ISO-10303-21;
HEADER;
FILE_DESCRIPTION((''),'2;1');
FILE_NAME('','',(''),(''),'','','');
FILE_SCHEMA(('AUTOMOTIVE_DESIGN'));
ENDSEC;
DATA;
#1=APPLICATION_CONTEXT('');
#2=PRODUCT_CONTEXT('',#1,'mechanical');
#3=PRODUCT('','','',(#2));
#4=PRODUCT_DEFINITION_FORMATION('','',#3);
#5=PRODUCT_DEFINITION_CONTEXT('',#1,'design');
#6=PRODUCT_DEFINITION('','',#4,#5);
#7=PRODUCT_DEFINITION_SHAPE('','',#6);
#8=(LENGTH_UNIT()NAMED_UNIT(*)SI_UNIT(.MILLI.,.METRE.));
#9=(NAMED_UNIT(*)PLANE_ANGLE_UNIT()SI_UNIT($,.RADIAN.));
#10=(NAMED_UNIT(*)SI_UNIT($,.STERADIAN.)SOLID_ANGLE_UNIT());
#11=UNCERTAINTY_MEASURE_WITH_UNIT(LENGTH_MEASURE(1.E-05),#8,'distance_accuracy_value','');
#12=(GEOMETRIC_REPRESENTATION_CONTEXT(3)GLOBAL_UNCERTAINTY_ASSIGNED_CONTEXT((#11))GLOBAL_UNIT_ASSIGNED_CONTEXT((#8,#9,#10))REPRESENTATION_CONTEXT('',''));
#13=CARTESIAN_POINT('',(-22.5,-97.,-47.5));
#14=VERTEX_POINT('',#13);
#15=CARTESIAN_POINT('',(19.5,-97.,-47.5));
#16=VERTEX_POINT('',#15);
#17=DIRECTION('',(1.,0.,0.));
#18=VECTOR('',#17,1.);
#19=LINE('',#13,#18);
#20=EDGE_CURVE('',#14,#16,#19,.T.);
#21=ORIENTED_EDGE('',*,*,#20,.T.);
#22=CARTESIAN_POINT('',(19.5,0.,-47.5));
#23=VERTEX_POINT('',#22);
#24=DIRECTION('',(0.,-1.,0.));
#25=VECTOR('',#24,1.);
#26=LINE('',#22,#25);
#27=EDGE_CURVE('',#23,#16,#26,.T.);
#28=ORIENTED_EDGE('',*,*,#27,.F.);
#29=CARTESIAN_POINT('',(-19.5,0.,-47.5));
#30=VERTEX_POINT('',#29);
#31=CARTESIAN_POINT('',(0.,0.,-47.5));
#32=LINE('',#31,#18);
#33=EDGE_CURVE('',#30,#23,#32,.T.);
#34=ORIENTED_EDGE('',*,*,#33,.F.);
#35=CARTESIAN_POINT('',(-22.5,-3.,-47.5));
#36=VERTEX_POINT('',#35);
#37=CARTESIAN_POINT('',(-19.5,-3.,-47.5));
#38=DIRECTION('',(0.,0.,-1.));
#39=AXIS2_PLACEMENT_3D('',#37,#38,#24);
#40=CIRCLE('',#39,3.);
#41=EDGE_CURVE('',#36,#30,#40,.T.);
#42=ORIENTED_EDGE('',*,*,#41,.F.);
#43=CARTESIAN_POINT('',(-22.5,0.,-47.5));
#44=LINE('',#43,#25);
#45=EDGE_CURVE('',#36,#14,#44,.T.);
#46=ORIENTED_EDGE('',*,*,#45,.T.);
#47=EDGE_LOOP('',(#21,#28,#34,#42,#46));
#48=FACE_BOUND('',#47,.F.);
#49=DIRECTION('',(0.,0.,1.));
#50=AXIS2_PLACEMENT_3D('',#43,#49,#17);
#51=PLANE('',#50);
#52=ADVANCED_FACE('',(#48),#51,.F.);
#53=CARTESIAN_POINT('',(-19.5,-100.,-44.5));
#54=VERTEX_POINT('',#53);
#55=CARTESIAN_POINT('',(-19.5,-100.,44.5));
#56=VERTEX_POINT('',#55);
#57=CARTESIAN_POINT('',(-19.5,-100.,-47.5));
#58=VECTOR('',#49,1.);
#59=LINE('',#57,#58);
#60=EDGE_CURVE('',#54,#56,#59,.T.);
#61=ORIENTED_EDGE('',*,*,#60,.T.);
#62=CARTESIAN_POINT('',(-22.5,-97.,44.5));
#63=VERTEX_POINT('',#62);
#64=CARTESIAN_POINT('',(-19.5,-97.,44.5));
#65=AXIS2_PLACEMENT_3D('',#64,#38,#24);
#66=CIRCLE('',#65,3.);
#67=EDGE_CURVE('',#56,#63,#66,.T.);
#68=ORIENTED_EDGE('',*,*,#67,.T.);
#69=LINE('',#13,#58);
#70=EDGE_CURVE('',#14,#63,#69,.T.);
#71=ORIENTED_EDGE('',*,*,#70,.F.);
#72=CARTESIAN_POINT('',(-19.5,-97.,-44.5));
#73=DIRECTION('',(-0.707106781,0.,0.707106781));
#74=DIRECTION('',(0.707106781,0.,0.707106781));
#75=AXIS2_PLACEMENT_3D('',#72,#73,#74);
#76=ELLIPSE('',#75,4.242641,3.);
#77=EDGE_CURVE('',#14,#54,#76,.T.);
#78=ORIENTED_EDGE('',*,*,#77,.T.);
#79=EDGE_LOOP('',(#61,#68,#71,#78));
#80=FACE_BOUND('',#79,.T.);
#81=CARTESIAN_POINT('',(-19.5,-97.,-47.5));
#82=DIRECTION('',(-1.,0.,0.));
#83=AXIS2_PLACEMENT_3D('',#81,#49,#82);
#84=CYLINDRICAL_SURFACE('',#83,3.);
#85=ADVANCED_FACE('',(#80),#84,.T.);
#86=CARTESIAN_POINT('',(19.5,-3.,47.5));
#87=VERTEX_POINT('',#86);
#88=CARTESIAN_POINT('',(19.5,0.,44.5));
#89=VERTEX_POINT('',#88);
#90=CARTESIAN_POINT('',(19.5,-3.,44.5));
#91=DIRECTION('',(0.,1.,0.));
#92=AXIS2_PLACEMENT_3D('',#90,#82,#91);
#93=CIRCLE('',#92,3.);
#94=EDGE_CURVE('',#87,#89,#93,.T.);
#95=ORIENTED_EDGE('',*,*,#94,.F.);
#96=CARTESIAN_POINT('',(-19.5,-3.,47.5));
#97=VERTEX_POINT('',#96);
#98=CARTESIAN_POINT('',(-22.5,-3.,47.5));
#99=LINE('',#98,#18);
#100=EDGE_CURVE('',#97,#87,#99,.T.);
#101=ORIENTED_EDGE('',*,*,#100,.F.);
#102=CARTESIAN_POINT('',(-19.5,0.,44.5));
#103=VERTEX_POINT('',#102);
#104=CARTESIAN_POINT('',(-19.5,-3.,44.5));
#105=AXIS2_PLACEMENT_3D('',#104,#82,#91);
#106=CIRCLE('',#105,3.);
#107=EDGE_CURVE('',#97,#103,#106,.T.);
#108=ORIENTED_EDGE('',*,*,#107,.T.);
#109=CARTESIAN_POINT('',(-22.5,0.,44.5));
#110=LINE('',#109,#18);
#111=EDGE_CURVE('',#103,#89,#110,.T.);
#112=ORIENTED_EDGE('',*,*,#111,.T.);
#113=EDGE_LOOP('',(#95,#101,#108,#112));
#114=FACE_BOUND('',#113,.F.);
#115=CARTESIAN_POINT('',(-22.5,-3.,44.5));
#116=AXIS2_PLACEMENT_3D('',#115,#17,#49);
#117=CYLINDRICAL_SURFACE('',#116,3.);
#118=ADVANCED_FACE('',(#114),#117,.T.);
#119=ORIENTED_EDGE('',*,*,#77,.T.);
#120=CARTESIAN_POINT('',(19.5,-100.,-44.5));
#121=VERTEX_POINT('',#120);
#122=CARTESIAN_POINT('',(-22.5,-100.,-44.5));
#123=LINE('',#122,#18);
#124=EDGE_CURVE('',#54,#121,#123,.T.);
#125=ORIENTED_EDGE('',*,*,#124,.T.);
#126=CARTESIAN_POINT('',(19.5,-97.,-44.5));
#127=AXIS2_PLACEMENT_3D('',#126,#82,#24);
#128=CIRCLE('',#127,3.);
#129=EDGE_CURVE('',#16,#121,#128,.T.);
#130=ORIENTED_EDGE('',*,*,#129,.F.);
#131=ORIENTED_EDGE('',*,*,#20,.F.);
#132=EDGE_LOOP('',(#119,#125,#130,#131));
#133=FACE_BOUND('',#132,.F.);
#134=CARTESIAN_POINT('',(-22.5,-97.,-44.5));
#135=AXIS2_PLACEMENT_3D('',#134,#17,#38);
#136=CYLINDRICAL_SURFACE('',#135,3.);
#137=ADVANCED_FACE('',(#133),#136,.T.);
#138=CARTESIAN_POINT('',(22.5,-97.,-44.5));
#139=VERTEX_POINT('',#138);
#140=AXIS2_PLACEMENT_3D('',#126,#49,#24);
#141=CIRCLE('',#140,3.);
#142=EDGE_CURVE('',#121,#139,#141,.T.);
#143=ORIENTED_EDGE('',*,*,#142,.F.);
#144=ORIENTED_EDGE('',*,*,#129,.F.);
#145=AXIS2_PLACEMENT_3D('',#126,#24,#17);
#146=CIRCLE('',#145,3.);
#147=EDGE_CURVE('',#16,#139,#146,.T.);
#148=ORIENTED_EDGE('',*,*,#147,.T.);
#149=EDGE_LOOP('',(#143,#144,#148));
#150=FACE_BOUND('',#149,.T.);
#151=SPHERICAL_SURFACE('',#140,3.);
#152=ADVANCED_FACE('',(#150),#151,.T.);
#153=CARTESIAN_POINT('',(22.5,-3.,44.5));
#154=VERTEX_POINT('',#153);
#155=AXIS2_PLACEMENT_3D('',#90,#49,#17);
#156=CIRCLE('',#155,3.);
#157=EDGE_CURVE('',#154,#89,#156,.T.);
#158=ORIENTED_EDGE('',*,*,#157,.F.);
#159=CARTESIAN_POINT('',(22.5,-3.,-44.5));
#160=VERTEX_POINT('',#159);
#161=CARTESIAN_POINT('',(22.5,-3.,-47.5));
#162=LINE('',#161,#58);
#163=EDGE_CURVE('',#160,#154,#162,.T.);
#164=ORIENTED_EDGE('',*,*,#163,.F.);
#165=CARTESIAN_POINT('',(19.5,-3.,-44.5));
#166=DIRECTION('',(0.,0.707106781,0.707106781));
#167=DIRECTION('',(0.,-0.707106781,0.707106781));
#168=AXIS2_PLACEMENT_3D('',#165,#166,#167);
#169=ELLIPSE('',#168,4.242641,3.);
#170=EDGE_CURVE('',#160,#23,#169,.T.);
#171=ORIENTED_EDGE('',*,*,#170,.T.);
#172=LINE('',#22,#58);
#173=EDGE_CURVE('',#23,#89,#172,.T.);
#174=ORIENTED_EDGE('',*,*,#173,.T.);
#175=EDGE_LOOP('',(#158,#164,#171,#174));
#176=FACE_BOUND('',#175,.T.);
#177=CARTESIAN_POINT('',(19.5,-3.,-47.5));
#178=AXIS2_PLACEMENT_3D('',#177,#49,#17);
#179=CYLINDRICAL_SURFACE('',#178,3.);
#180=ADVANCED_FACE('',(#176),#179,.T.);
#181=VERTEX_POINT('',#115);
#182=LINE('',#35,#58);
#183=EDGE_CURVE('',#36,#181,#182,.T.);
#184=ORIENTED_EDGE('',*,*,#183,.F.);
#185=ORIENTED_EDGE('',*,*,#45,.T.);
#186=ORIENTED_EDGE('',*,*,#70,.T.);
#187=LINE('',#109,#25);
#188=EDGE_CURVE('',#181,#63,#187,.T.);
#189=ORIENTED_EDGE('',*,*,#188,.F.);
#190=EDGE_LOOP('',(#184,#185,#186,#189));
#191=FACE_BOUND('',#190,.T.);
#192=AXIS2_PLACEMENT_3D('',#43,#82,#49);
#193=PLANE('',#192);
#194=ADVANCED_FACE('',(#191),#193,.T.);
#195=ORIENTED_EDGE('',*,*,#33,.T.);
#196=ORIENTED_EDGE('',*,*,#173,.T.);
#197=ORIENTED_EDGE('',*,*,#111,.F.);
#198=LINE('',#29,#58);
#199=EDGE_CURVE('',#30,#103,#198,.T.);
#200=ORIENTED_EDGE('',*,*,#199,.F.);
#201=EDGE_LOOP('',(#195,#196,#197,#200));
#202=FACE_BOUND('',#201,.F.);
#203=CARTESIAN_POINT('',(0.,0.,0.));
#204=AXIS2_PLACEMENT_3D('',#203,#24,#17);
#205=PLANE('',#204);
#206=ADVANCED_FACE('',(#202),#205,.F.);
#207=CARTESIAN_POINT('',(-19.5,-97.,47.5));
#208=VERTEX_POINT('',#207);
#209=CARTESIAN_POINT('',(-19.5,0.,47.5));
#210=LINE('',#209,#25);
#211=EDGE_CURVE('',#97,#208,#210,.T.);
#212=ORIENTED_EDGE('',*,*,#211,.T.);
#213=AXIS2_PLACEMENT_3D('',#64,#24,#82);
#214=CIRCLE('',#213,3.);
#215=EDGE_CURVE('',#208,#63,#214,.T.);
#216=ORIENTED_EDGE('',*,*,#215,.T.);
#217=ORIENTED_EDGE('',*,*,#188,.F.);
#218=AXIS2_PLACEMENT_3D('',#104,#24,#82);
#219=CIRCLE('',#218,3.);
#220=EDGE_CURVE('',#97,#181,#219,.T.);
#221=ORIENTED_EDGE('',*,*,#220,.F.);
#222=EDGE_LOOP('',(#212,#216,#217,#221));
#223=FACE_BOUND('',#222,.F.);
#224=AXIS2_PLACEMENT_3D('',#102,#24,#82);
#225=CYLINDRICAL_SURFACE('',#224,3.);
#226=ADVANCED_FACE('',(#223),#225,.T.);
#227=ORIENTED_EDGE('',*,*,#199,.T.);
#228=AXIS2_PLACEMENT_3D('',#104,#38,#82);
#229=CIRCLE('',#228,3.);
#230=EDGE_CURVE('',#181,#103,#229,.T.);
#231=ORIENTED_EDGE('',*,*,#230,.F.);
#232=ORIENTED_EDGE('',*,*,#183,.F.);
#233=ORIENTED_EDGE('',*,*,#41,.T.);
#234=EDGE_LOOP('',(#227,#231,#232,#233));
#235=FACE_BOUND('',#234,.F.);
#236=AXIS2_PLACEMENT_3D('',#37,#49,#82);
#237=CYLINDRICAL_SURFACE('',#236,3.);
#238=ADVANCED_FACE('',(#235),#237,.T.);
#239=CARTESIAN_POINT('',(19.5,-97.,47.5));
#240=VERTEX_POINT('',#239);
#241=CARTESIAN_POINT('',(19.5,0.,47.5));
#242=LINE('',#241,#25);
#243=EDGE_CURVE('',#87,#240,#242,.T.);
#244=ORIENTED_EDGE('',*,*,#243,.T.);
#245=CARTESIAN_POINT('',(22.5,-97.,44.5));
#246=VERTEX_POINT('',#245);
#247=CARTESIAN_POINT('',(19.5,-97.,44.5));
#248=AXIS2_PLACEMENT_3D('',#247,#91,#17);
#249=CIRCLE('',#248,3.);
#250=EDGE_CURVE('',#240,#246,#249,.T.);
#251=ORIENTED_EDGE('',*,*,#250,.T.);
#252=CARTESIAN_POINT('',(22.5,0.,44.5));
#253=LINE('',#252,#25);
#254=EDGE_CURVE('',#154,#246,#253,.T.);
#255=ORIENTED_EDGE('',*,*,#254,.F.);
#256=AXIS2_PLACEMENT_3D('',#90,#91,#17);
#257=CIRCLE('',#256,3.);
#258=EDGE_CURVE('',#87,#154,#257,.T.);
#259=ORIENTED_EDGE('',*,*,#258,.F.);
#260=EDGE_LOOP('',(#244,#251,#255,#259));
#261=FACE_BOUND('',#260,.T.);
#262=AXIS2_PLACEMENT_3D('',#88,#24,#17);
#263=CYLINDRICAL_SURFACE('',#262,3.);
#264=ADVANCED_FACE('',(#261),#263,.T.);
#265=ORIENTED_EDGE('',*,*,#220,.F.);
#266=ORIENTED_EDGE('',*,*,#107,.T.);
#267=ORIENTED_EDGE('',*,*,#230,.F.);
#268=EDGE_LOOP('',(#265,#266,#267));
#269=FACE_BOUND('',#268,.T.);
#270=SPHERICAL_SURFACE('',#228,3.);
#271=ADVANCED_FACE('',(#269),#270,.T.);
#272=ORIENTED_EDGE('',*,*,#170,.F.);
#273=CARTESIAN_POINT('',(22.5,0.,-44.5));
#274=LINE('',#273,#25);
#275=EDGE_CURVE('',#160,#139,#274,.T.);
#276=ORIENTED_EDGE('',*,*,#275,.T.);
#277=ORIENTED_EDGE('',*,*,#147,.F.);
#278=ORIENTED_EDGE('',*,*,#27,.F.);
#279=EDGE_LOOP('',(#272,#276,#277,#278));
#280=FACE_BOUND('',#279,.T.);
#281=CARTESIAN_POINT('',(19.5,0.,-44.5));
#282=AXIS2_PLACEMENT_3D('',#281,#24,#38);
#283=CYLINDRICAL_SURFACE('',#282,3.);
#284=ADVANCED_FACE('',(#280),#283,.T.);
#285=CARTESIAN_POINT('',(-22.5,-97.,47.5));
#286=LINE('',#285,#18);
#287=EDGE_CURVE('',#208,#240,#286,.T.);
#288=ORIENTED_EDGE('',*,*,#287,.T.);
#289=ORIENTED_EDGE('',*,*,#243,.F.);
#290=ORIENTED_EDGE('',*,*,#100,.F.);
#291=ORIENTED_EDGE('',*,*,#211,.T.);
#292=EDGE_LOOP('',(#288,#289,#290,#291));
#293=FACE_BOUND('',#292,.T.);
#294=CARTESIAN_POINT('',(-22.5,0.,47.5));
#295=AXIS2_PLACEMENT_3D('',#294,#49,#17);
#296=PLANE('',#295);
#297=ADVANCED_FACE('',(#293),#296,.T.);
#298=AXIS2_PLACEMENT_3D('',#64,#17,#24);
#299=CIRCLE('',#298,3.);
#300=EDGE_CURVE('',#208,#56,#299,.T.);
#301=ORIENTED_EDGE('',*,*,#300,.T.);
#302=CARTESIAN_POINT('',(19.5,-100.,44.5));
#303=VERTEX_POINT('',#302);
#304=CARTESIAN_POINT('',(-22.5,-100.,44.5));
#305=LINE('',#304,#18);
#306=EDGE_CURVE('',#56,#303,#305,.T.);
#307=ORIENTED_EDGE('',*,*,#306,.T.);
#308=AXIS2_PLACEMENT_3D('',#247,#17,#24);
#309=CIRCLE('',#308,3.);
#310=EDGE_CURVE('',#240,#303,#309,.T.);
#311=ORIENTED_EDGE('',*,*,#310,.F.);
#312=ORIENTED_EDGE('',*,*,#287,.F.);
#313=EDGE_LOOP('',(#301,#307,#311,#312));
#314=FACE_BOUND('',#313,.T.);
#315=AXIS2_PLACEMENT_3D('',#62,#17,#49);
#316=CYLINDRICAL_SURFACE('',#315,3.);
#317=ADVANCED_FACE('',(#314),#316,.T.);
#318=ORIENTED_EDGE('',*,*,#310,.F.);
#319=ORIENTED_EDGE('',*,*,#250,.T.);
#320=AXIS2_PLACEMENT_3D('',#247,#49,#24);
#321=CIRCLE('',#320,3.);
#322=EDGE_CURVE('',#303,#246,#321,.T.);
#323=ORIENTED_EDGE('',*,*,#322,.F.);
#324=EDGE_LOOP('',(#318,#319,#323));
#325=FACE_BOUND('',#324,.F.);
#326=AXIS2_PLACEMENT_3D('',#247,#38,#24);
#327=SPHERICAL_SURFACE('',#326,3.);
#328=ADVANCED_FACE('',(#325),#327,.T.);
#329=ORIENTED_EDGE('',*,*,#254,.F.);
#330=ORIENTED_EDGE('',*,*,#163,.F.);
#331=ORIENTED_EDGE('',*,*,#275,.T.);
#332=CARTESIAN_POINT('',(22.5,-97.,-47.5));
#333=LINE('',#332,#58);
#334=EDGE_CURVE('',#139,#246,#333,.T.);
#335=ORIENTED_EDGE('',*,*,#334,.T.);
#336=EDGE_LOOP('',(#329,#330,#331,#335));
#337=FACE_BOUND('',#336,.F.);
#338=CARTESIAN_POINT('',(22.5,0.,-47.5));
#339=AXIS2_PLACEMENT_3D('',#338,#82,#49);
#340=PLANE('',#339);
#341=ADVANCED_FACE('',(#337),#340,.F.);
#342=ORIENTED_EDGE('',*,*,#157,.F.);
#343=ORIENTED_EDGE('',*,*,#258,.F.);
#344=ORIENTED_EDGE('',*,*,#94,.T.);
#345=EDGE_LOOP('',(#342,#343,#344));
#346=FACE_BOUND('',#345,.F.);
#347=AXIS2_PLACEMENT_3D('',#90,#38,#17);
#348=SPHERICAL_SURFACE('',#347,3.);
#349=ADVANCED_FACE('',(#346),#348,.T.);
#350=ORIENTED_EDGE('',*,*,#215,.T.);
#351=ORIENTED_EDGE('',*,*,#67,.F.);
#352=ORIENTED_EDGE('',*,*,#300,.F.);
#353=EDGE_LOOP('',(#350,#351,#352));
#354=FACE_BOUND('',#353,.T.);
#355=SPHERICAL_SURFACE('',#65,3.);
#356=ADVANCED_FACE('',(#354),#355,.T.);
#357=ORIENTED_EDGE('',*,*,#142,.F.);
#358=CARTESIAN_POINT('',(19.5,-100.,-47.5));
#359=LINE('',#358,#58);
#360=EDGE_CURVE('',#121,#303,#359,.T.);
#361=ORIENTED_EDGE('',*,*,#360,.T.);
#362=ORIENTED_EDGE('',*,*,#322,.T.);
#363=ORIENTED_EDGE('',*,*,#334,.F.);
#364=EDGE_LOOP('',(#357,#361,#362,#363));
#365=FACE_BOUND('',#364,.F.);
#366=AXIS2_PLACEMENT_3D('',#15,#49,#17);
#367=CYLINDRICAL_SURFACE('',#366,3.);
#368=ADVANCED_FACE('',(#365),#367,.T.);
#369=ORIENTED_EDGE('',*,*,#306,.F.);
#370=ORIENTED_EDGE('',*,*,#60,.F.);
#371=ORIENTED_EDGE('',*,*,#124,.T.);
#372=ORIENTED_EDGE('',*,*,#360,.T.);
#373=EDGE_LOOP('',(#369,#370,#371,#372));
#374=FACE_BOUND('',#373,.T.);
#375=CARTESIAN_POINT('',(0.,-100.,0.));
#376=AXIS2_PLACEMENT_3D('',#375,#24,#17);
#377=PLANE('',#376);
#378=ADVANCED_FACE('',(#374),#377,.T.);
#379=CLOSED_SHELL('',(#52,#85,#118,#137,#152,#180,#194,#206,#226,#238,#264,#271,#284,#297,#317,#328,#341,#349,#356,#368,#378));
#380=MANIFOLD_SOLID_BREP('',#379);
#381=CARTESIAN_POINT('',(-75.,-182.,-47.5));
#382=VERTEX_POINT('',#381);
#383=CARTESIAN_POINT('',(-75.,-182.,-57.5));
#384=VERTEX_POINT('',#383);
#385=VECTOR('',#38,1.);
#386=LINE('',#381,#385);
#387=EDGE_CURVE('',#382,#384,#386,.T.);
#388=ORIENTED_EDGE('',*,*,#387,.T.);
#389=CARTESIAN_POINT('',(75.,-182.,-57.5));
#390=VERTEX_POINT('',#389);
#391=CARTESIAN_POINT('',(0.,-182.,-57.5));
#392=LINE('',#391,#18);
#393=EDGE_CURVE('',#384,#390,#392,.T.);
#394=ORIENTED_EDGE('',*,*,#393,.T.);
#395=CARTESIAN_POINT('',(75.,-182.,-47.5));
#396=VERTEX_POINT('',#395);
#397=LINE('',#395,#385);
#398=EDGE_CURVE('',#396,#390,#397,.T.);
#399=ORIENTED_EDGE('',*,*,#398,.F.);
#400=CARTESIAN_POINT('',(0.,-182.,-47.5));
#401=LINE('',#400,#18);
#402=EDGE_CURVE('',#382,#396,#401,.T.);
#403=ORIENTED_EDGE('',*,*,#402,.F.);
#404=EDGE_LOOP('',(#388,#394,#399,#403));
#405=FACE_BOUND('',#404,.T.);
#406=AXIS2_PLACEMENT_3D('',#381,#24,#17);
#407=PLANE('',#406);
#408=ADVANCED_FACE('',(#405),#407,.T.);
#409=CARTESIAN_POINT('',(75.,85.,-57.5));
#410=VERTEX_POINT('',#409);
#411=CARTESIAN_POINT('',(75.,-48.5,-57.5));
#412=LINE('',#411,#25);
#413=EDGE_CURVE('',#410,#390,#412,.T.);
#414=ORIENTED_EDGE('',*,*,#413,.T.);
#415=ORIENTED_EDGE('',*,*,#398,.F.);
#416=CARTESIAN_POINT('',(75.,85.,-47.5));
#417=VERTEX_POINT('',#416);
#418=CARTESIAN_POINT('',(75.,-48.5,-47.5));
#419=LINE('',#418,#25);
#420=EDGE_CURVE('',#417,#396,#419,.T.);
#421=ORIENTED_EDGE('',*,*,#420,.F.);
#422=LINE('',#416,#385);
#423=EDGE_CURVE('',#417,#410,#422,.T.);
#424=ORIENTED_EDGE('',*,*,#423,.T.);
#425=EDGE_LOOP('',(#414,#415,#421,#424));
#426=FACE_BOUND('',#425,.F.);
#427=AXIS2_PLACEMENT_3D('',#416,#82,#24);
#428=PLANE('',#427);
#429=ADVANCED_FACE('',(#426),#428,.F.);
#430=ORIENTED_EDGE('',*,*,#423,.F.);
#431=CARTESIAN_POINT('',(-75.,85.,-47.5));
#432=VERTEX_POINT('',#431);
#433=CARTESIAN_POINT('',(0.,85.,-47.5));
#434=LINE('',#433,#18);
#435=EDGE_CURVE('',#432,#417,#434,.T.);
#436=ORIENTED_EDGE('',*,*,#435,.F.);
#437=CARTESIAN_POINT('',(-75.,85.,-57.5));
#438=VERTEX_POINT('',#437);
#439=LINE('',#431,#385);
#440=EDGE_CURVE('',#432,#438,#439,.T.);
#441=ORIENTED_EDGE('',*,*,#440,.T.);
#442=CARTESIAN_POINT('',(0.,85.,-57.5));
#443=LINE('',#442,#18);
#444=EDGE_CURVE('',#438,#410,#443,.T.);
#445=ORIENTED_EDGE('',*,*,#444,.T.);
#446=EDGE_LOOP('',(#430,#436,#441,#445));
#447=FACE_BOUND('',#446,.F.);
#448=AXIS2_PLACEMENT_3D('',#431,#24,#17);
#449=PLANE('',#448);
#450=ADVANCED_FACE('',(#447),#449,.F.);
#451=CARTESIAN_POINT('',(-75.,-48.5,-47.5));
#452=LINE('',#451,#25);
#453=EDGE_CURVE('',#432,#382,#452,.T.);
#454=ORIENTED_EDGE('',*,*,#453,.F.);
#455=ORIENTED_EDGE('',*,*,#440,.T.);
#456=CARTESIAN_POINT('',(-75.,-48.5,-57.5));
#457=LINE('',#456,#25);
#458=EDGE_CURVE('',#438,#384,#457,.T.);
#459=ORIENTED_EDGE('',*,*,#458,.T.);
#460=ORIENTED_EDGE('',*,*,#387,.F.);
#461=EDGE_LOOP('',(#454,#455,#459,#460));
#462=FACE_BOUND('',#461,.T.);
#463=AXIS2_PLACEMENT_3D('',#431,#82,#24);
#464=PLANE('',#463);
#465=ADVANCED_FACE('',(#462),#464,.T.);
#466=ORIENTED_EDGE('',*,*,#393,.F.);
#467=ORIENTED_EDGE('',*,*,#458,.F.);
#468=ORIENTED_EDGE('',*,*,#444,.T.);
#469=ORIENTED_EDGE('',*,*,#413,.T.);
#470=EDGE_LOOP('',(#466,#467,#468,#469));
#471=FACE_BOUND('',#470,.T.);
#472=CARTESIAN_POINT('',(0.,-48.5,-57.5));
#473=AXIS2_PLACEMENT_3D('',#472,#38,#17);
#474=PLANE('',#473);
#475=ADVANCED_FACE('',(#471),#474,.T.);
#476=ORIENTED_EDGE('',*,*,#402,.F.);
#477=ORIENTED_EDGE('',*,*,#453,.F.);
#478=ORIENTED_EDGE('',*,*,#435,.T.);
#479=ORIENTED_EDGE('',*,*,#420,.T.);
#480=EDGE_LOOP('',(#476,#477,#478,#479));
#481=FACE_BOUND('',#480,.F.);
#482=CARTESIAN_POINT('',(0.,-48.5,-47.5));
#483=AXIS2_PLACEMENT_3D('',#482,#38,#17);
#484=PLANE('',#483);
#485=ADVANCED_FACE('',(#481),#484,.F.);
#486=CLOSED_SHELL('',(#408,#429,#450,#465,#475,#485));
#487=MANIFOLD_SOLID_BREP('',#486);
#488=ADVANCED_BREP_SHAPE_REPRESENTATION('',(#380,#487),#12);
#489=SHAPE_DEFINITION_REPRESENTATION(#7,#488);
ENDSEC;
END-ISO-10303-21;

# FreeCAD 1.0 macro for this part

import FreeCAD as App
import Part
import Sketcher


def edges_at(feature, points):
    """Names of the edges that pass closest to the given points."""
    edges = feature.Shape.Edges
    near = lambda p: min(range(len(edges)), key=lambda i: edges[i].distToShape(Part.Vertex(*p))[0])
    return sorted({f"Edge{near(p) + 1}" for p in points})


def add_polygon(sketch, points):
    """Adds a closed chain of lines whose ends are joined by coincident constraints."""
    first, n = sketch.GeometryCount, len(points)
    for a, b in zip(points, points[1:] + points[:1]):
        sketch.addGeometry(Part.LineSegment(App.Vector(*a, 0), App.Vector(*b, 0)), False)
    for i in range(n):
        sketch.addConstraint(Sketcher.Constraint("Coincident", first + i, 2, first + (i + 1) % n, 1))

doc = App.newDocument("Part")
body = doc.addObject("PartDesign::Body", "Body")

sketch1 = doc.addObject("Sketcher::SketchObject", "Sketch")
body.addObject(sketch1)
sketch1.AttachmentSupport = (doc.XZ_Plane, [""])
sketch1.MapMode = "FlatFace"
add_polygon(sketch1, [(-22, 48), (-22, -48), (22, -48), (22, 48)])
sketch1.addConstraint([
    Sketcher.Constraint("Vertical", 0),
    Sketcher.Constraint("Horizontal", 1),
    Sketcher.Constraint("Vertical", 2),
    Sketcher.Constraint("Horizontal", 3),
    Sketcher.Constraint("Symmetric", 0, 2, 2, 2, -1, 1),
    Sketcher.Constraint("DistanceX", 1, 1, 1, 2, 45.0),
    Sketcher.Constraint("DistanceY", 0, 2, 0, 1, 95.0),
])
pad1 = doc.addObject("PartDesign::Pad", "Pad")
body.addObject(pad1)
pad1.Profile = sketch1
pad1.Length = 100
doc.recompute()

fillet = doc.addObject("PartDesign::Fillet", "Fillet")
body.addObject(fillet)
fillet.Base = (pad1, edges_at(pad1, [
    (22.5, -100, 0),
    (-22.5, -100, 0),
    (0, -100, -47.5),
    (0, -100, 47.5),
    (22.5, 0, 0),
    (-22.5, 0, 0),
    (22.5, -50, -47.5),
    (22.5, -50, 47.5),
    (-22.5, -50, 47.5),
    (0, 0, 47.5),
]))
fillet.Radius = 3
body2 = doc.addObject("PartDesign::Body", "Body001")

sketch2 = doc.addObject("Sketcher::SketchObject", "Sketch001")
body2.addObject(sketch2)
sketch2.AttachmentSupport = (doc.getObject("XY_Plane001"), [""])
sketch2.MapMode = "FlatFace"
sketch2.AttachmentOffset = App.Placement(App.Vector(0, 0, -47.5), App.Rotation())
add_polygon(sketch2, [(-75, -182), (-75, 85), (75, 85), (75, -182)])
sketch2.addConstraint([
    Sketcher.Constraint("Vertical", 0),
    Sketcher.Constraint("Horizontal", 1),
    Sketcher.Constraint("Vertical", 2),
    Sketcher.Constraint("Horizontal", 3),
    Sketcher.Constraint("DistanceX", 1, 1, 1, 2, 150.0),
    Sketcher.Constraint("DistanceY", 0, 1, 0, 2, 267.0),
    Sketcher.Constraint("DistanceX", 0, 2, -1, 1, 75.0),
    Sketcher.Constraint("DistanceY", -1, 1, 0, 2, 85.0),
])
pad2 = doc.addObject("PartDesign::Pad", "Pad001")
body2.addObject(pad2)
pad2.Profile = sketch2
pad2.Length = 10
pad2.Reversed = True

doc.recompute()
